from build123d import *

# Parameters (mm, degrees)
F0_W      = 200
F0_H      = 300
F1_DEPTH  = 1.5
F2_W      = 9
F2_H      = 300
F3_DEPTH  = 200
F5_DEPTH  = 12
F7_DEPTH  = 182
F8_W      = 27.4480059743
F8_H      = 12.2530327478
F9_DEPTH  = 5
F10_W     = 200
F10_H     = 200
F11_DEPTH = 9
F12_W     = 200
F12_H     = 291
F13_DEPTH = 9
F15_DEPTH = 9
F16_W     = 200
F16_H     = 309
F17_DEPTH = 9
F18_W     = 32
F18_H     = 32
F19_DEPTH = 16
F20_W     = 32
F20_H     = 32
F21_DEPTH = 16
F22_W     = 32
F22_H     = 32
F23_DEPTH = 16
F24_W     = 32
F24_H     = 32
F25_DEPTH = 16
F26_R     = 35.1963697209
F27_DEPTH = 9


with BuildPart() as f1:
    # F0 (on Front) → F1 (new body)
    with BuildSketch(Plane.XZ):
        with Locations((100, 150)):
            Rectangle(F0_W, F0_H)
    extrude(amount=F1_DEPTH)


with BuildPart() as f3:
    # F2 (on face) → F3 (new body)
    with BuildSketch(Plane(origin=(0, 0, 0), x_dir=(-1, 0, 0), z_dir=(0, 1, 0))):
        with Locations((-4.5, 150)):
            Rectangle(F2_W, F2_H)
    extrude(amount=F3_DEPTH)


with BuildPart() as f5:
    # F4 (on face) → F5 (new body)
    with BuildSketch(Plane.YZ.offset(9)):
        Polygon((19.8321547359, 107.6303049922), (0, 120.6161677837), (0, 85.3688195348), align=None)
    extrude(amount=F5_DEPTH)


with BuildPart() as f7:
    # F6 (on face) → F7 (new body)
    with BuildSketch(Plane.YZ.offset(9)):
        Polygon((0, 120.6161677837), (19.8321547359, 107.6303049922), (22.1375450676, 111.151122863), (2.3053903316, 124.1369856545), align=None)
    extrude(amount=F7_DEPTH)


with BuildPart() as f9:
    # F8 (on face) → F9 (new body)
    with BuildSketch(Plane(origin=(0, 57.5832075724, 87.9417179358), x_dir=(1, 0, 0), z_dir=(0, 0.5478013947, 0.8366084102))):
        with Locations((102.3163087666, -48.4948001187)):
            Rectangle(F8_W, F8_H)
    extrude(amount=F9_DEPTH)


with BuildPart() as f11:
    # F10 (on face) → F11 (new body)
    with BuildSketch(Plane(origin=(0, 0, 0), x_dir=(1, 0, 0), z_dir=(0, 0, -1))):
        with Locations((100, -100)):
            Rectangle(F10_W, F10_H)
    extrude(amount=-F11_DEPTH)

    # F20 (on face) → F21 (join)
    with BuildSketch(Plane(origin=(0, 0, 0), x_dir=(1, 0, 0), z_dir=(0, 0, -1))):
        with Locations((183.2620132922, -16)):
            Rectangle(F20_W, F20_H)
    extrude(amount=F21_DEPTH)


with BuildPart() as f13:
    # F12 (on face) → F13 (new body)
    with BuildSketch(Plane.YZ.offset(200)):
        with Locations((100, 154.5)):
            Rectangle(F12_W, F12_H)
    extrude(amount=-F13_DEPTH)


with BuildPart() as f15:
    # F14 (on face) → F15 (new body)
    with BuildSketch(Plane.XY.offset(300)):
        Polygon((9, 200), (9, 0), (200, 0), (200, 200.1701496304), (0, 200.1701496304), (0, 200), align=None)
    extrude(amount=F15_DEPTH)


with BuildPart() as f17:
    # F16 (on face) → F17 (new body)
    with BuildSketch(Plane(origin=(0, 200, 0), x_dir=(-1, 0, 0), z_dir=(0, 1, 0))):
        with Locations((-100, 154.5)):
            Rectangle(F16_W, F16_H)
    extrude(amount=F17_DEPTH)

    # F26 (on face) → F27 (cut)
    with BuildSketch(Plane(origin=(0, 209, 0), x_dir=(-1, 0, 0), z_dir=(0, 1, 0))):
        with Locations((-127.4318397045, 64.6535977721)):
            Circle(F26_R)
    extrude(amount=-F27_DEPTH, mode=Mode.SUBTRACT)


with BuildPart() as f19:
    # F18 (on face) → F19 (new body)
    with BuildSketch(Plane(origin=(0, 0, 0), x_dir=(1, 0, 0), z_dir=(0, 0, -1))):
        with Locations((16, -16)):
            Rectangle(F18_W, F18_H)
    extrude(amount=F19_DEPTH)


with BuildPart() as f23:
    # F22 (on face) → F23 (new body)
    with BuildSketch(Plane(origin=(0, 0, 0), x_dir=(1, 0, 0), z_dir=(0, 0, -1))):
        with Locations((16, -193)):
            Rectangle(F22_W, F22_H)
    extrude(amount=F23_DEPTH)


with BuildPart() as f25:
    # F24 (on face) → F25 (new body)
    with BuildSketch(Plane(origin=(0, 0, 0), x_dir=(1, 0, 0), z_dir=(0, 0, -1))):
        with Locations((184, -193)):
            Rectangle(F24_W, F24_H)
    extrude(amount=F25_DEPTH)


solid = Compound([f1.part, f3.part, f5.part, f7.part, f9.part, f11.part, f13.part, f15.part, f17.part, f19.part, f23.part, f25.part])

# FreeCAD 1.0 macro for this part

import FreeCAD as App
import Part
import Sketcher

V = App.Vector
Q = App.Units.Quantity

doc = App.newDocument("Part")
body = doc.addObject("PartDesign::Body", "Body")

# Sketch on XZ plane
sketch1 = doc.addObject("Sketcher::SketchObject", "Sketch")
body.addObject(sketch1)
sketch1.AttachmentSupport = (doc.XZ_Plane, [""])
sketch1.MapMode = "FlatFace"
sketch1.addGeometry([
    Part.LineSegment(V(0, 300, 0), V(0, 0, 0)),
    Part.LineSegment(V(0, 0, 0), V(200, 0, 0)),
    Part.LineSegment(V(200, 0, 0), V(200, 300, 0)),
    Part.LineSegment(V(200, 300, 0), V(0, 300, 0)),
], False)
sketch1.addConstraint([
    Sketcher.Constraint("Coincident", 0, 2, 1, 1),
    Sketcher.Constraint("Coincident", 1, 2, 2, 1),
    Sketcher.Constraint("Coincident", 2, 2, 3, 1),
    Sketcher.Constraint("Coincident", 3, 2, 0, 1),
    Sketcher.Constraint("Vertical", 0),
    Sketcher.Constraint("Horizontal", 1),
    Sketcher.Constraint("Vertical", 2),
    Sketcher.Constraint("Horizontal", 3),
    Sketcher.Constraint("Coincident", 0, 2, -1, 1),
    Sketcher.Constraint("DistanceX", 1, 1, 1, 2, Q("200 mm")),
    Sketcher.Constraint("DistanceY", 0, 2, 0, 1, Q("300 mm")),
])
pad1 = doc.addObject("PartDesign::Pad", "Pad")
body.addObject(pad1)
pad1.Profile = sketch1
pad1.Length = 1.5
body2 = doc.addObject("PartDesign::Body", "Body001")

# Sketch on XZ plane
sketch2 = doc.addObject("Sketcher::SketchObject", "Sketch001")
body2.addObject(sketch2)
sketch2.AttachmentSupport = (doc.getObject("XZ_Plane001"), [""])
sketch2.MapMode = "FlatFace"
sketch2.addGeometry([
    Part.LineSegment(V(9, 300, 0), V(9, 0, 0)),
    Part.LineSegment(V(9, 0, 0), V(0, 0, 0)),
    Part.LineSegment(V(0, 0, 0), V(0, 300, 0)),
    Part.LineSegment(V(0, 300, 0), V(9, 300, 0)),
], False)
sketch2.addConstraint([
    Sketcher.Constraint("Coincident", 0, 2, 1, 1),
    Sketcher.Constraint("Coincident", 1, 2, 2, 1),
    Sketcher.Constraint("Coincident", 2, 2, 3, 1),
    Sketcher.Constraint("Coincident", 3, 2, 0, 1),
    Sketcher.Constraint("Vertical", 0),
    Sketcher.Constraint("Horizontal", 1),
    Sketcher.Constraint("Vertical", 2),
    Sketcher.Constraint("Horizontal", 3),
    Sketcher.Constraint("Coincident", 1, 2, -1, 1),
    Sketcher.Constraint("DistanceX", 1, 2, 1, 1, Q("9 mm")),
    Sketcher.Constraint("DistanceY", 0, 2, 0, 1, Q("300 mm")),
])
pad2 = doc.addObject("PartDesign::Pad", "Pad001")
body2.addObject(pad2)
pad2.Profile = sketch2
pad2.Length = 200
pad2.Reversed = True
body3 = doc.addObject("PartDesign::Body", "Body002")

# Sketch on YZ plane
sketch3 = doc.addObject("Sketcher::SketchObject", "Sketch002")
body3.addObject(sketch3)
sketch3.AttachmentSupport = (doc.getObject("YZ_Plane002"), [""])
sketch3.MapMode = "FlatFace"
sketch3.AttachmentOffset = App.Placement(V(0, 0, 9), App.Rotation())
sketch3.addGeometry([
    Part.LineSegment(V(19.832155, 107.630305, 0), V(0, 120.616168, 0)),
    Part.LineSegment(V(0, 120.616168, 0), V(0, 85.36882, 0)),
    Part.LineSegment(V(0, 85.36882, 0), V(19.832155, 107.630305, 0)),
], False)
sketch3.addConstraint([
    Sketcher.Constraint("Coincident", 0, 2, 1, 1),
    Sketcher.Constraint("Coincident", 1, 2, 2, 1),
    Sketcher.Constraint("Coincident", 2, 2, 0, 1),
    Sketcher.Constraint("Vertical", 1),
    Sketcher.Constraint("PointOnObject", 0, 2, -2),
    Sketcher.Constraint("DistanceY", 1, 2, 1, 1, Q("35.247348 mm")),
    Sketcher.Constraint("Distance", 0, Q("23.705421 mm")),
    Sketcher.Constraint("DistanceY", -1, 1, 1, 2, Q("85.36882 mm")),
    Sketcher.Constraint("Distance", 2, Q("29.814226 mm")),
])
pad3 = doc.addObject("PartDesign::Pad", "Pad002")
body3.addObject(pad3)
pad3.Profile = sketch3
pad3.Length = 12
body4 = doc.addObject("PartDesign::Body", "Body003")

# Sketch on YZ plane
sketch4 = doc.addObject("Sketcher::SketchObject", "Sketch003")
body4.addObject(sketch4)
sketch4.AttachmentSupport = (doc.getObject("YZ_Plane003"), [""])
sketch4.MapMode = "FlatFace"
sketch4.AttachmentOffset = App.Placement(V(0, 0, 9), App.Rotation())
sketch4.addGeometry([
    Part.LineSegment(V(0, 120.616168, 0), V(19.832155, 107.630305, 0)),
    Part.LineSegment(V(19.832155, 107.630305, 0), V(22.137545, 111.151123, 0)),
    Part.LineSegment(V(22.137545, 111.151123, 0), V(2.30539, 124.136986, 0)),
    Part.LineSegment(V(2.30539, 124.136986, 0), V(0, 120.616168, 0)),
], False)
sketch4.addConstraint([
    Sketcher.Constraint("Coincident", 0, 2, 1, 1),
    Sketcher.Constraint("Coincident", 1, 2, 2, 1),
    Sketcher.Constraint("Coincident", 2, 2, 3, 1),
    Sketcher.Constraint("Coincident", 3, 2, 0, 1),
    Sketcher.Constraint("PointOnObject", 3, 2, -2),
    Sketcher.Constraint("Perpendicular", 0, 1),
    Sketcher.Constraint("Perpendicular", 1, 2),
    Sketcher.Constraint("Perpendicular", 2, 3),
    Sketcher.Constraint("Distance", 0, Q("23.705421 mm")),
    Sketcher.Constraint("Distance", 1, Q("4.208442 mm")),
    Sketcher.Constraint("DistanceX", -1, 1, 2, 2, Q("2.30539 mm")),
    Sketcher.Constraint("DistanceY", -1, 1, 0, 2, Q("107.630305 mm")),
])
pad4 = doc.addObject("PartDesign::Pad", "Pad003")
body4.addObject(pad4)
pad4.Profile = sketch4
pad4.Length = 182
body5 = doc.addObject("PartDesign::Body", "Body004")

# Sketch on an angled plane
sketch5 = doc.addObject("Sketcher::SketchObject", "Sketch004")
body5.addObject(sketch5)
sketch5.Placement = App.Placement(V(0, 57.583208, 87.941718), App.Rotation(V(1, 0, 0), V(0, 0.83660841, -0.547801395), V(0, 0.547801395, 0.83660841), "ZXY"))
sketch5.addGeometry([
    Part.LineSegment(V(88.592306, -42.368284, 0), V(88.592306, -54.621316, 0)),
    Part.LineSegment(V(88.592306, -54.621316, 0), V(116.040312, -54.621316, 0)),
    Part.LineSegment(V(116.040312, -54.621316, 0), V(116.040312, -42.368284, 0)),
    Part.LineSegment(V(116.040312, -42.368284, 0), V(88.592306, -42.368284, 0)),
], False)
sketch5.addConstraint([
    Sketcher.Constraint("Coincident", 0, 2, 1, 1),
    Sketcher.Constraint("Coincident", 1, 2, 2, 1),
    Sketcher.Constraint("Coincident", 2, 2, 3, 1),
    Sketcher.Constraint("Coincident", 3, 2, 0, 1),
    Sketcher.Constraint("Vertical", 0),
    Sketcher.Constraint("Horizontal", 1),
    Sketcher.Constraint("Vertical", 2),
    Sketcher.Constraint("Horizontal", 3),
    Sketcher.Constraint("DistanceX", 1, 1, 1, 2, Q("27.448006 mm")),
    Sketcher.Constraint("DistanceY", 0, 2, 0, 1, Q("12.253033 mm")),
    Sketcher.Constraint("DistanceX", -1, 1, 1, 2, Q("116.040312 mm")),
    Sketcher.Constraint("DistanceY", 0, 2, -1, 1, Q("54.621316 mm")),
])
pad5 = doc.addObject("PartDesign::Pad", "Pad004")
body5.addObject(pad5)
pad5.Profile = sketch5
pad5.Length = 5
body6 = doc.addObject("PartDesign::Body", "Body005")

# Sketch on XY plane
sketch6 = doc.addObject("Sketcher::SketchObject", "Sketch005")
body6.addObject(sketch6)
sketch6.AttachmentSupport = (doc.getObject("XY_Plane005"), [""])
sketch6.MapMode = "FlatFace"
sketch6.addGeometry([
    Part.LineSegment(V(0, 0, 0), V(0, 200, 0)),
    Part.LineSegment(V(0, 200, 0), V(200, 200, 0)),
    Part.LineSegment(V(200, 200, 0), V(200, 0, 0)),
    Part.LineSegment(V(200, 0, 0), V(0, 0, 0)),
], False)
sketch6.addConstraint([
    Sketcher.Constraint("Coincident", 0, 2, 1, 1),
    Sketcher.Constraint("Coincident", 1, 2, 2, 1),
    Sketcher.Constraint("Coincident", 2, 2, 3, 1),
    Sketcher.Constraint("Coincident", 3, 2, 0, 1),
    Sketcher.Constraint("Vertical", 0),
    Sketcher.Constraint("Horizontal", 1),
    Sketcher.Constraint("Vertical", 2),
    Sketcher.Constraint("Horizontal", 3),
    Sketcher.Constraint("Coincident", 3, 2, -1, 1),
    Sketcher.Constraint("Equal", 3, 0),
    Sketcher.Constraint("DistanceX", 1, 1, 1, 2, Q("200 mm")),
])
pad6 = doc.addObject("PartDesign::Pad", "Pad005")
body6.addObject(pad6)
pad6.Profile = sketch6
pad6.Length = 9

# Sketch on XY plane
sketch7 = doc.addObject("Sketcher::SketchObject", "Sketch006")
body6.addObject(sketch7)
sketch7.AttachmentSupport = (doc.getObject("XY_Plane005"), [""])
sketch7.MapMode = "FlatFace"
sketch7.addGeometry([
    Part.LineSegment(V(167.262013, 0, 0), V(167.262013, 32, 0)),
    Part.LineSegment(V(167.262013, 32, 0), V(199.262013, 32, 0)),
    Part.LineSegment(V(199.262013, 32, 0), V(199.262013, 0, 0)),
    Part.LineSegment(V(199.262013, 0, 0), V(167.262013, 0, 0)),
], False)
sketch7.addConstraint([
    Sketcher.Constraint("Coincident", 0, 2, 1, 1),
    Sketcher.Constraint("Coincident", 1, 2, 2, 1),
    Sketcher.Constraint("Coincident", 2, 2, 3, 1),
    Sketcher.Constraint("Coincident", 3, 2, 0, 1),
    Sketcher.Constraint("Vertical", 0),
    Sketcher.Constraint("Horizontal", 1),
    Sketcher.Constraint("Vertical", 2),
    Sketcher.Constraint("Horizontal", 3),
    Sketcher.Constraint("PointOnObject", 2, 2, -1),
    Sketcher.Constraint("Equal", 3, 0),
    Sketcher.Constraint("DistanceX", 1, 1, 1, 2, Q("32 mm")),
    Sketcher.Constraint("DistanceX", -1, 1, 0, 2, Q("167.262013 mm")),
])
pad7 = doc.addObject("PartDesign::Pad", "Pad006")
body6.addObject(pad7)
pad7.Profile = sketch7
pad7.Length = 16
pad7.Reversed = True
body7 = doc.addObject("PartDesign::Body", "Body006")

# Sketch on YZ plane
sketch8 = doc.addObject("Sketcher::SketchObject", "Sketch007")
body7.addObject(sketch8)
sketch8.AttachmentSupport = (doc.getObject("YZ_Plane006"), [""])
sketch8.MapMode = "FlatFace"
sketch8.AttachmentOffset = App.Placement(V(0, 0, 200), App.Rotation())
sketch8.addGeometry([
    Part.LineSegment(V(0, 300, 0), V(0, 9, 0)),
    Part.LineSegment(V(0, 9, 0), V(200, 9, 0)),
    Part.LineSegment(V(200, 9, 0), V(200, 300, 0)),
    Part.LineSegment(V(200, 300, 0), V(0, 300, 0)),
], False)
sketch8.addConstraint([
    Sketcher.Constraint("Coincident", 0, 2, 1, 1),
    Sketcher.Constraint("Coincident", 1, 2, 2, 1),
    Sketcher.Constraint("Coincident", 2, 2, 3, 1),
    Sketcher.Constraint("Coincident", 3, 2, 0, 1),
    Sketcher.Constraint("Vertical", 0),
    Sketcher.Constraint("Horizontal", 1),
    Sketcher.Constraint("Vertical", 2),
    Sketcher.Constraint("Horizontal", 3),
    Sketcher.Constraint("PointOnObject", 0, 2, -2),
    Sketcher.Constraint("DistanceX", 1, 1, 1, 2, Q("200 mm")),
    Sketcher.Constraint("DistanceY", 0, 2, 0, 1, Q("291 mm")),
    Sketcher.Constraint("DistanceY", -1, 1, 0, 2, Q("9 mm")),
])
pad8 = doc.addObject("PartDesign::Pad", "Pad007")
body7.addObject(pad8)
pad8.Profile = sketch8
pad8.Length = 9
pad8.Reversed = True
body8 = doc.addObject("PartDesign::Body", "Body007")

# Sketch on XY plane
sketch9 = doc.addObject("Sketcher::SketchObject", "Sketch008")
body8.addObject(sketch9)
sketch9.AttachmentSupport = (doc.getObject("XY_Plane007"), [""])
sketch9.MapMode = "FlatFace"
sketch9.AttachmentOffset = App.Placement(V(0, 0, 300), App.Rotation())
sketch9.addGeometry([
    Part.LineSegment(V(9, 200, 0), V(9, 0, 0)),  # 0
    Part.LineSegment(V(9, 0, 0), V(200, 0, 0)),  # 1
    Part.LineSegment(V(200, 0, 0), V(200, 200.17015, 0)),  # 2
    Part.LineSegment(V(200, 200.17015, 0), V(0, 200.17015, 0)),  # 3
    Part.LineSegment(V(0, 200.17015, 0), V(0, 200, 0)),  # 4
    Part.LineSegment(V(0, 200, 0), V(9, 200, 0)),  # 5
], False)
sketch9.addConstraint([
    Sketcher.Constraint("Coincident", 0, 2, 1, 1),
    Sketcher.Constraint("Coincident", 1, 2, 2, 1),
    Sketcher.Constraint("Coincident", 2, 2, 3, 1),
    Sketcher.Constraint("Coincident", 3, 2, 4, 1),
    Sketcher.Constraint("Coincident", 4, 2, 5, 1),
    Sketcher.Constraint("Coincident", 5, 2, 0, 1),
    Sketcher.Constraint("Vertical", 0),
    Sketcher.Constraint("Horizontal", 1),
    Sketcher.Constraint("Vertical", 2),
    Sketcher.Constraint("Horizontal", 3),
    Sketcher.Constraint("Vertical", 4),
    Sketcher.Constraint("Horizontal", 5),
    Sketcher.Constraint("PointOnObject", 0, 2, -1),
    Sketcher.Constraint("PointOnObject", 3, 2, -2),
    Sketcher.Constraint("Equal", 3, 0),
    Sketcher.Constraint("DistanceX", 1, 1, 1, 2, Q("191 mm")),
    Sketcher.Constraint("DistanceX", 3, 2, 3, 1, Q("200 mm")),
    Sketcher.Constraint("DistanceY", 2, 1, 2, 2, Q("200.17015 mm")),
])
pad9 = doc.addObject("PartDesign::Pad", "Pad008")
body8.addObject(pad9)
pad9.Profile = sketch9
pad9.Length = 9
body9 = doc.addObject("PartDesign::Body", "Body008")

# Sketch on XZ plane
sketch10 = doc.addObject("Sketcher::SketchObject", "Sketch009")
body9.addObject(sketch10)
sketch10.AttachmentSupport = (doc.getObject("XZ_Plane008"), [""])
sketch10.MapMode = "FlatFace"
sketch10.AttachmentOffset = App.Placement(V(0, 0, -200), App.Rotation())
sketch10.addGeometry([
    Part.LineSegment(V(200, 309, 0), V(200, 0, 0)),
    Part.LineSegment(V(200, 0, 0), V(0, 0, 0)),
    Part.LineSegment(V(0, 0, 0), V(0, 309, 0)),
    Part.LineSegment(V(0, 309, 0), V(200, 309, 0)),
], False)
sketch10.addConstraint([
    Sketcher.Constraint("Coincident", 0, 2, 1, 1),
    Sketcher.Constraint("Coincident", 1, 2, 2, 1),
    Sketcher.Constraint("Coincident", 2, 2, 3, 1),
    Sketcher.Constraint("Coincident", 3, 2, 0, 1),
    Sketcher.Constraint("Vertical", 0),
    Sketcher.Constraint("Horizontal", 1),
    Sketcher.Constraint("Vertical", 2),
    Sketcher.Constraint("Horizontal", 3),
    Sketcher.Constraint("Coincident", 1, 2, -1, 1),
    Sketcher.Constraint("DistanceX", 1, 2, 1, 1, Q("200 mm")),
    Sketcher.Constraint("DistanceY", 0, 2, 0, 1, Q("309 mm")),
])
pad10 = doc.addObject("PartDesign::Pad", "Pad009")
body9.addObject(pad10)
pad10.Profile = sketch10
pad10.Length = 9
pad10.Reversed = True

# Sketch on XZ plane
sketch11 = doc.addObject("Sketcher::SketchObject", "Sketch010")
body9.addObject(sketch11)
sketch11.AttachmentSupport = (doc.getObject("XZ_Plane008"), [""])
sketch11.MapMode = "FlatFace"
sketch11.AttachmentOffset = App.Placement(V(0, 0, -209), App.Rotation())
sketch11.addGeometry(Part.Circle(V(127.43184, 64.653598, 0), V(0, 0, 1), 35.19637), False)
sketch11.addConstraint([
    Sketcher.Constraint("Diameter", 0, Q("70.392739 mm")),
    Sketcher.Constraint("DistanceX", -1, 1, 0, 3, Q("127.43184 mm")),
    Sketcher.Constraint("DistanceY", -1, 1, 0, 3, Q("64.653598 mm")),
])
pocket1 = doc.addObject("PartDesign::Pocket", "Pocket")
body9.addObject(pocket1)
pocket1.Profile = sketch11
pocket1.Length = 9
pocket1.Reversed = True
body10 = doc.addObject("PartDesign::Body", "Body009")

# Sketch on XY plane
sketch12 = doc.addObject("Sketcher::SketchObject", "Sketch011")
body10.addObject(sketch12)
sketch12.AttachmentSupport = (doc.getObject("XY_Plane009"), [""])
sketch12.MapMode = "FlatFace"
sketch12.addGeometry([
    Part.LineSegment(V(0, 0, 0), V(0, 32, 0)),
    Part.LineSegment(V(0, 32, 0), V(32, 32, 0)),
    Part.LineSegment(V(32, 32, 0), V(32, 0, 0)),
    Part.LineSegment(V(32, 0, 0), V(0, 0, 0)),
], False)
sketch12.addConstraint([
    Sketcher.Constraint("Coincident", 0, 2, 1, 1),
    Sketcher.Constraint("Coincident", 1, 2, 2, 1),
    Sketcher.Constraint("Coincident", 2, 2, 3, 1),
    Sketcher.Constraint("Coincident", 3, 2, 0, 1),
    Sketcher.Constraint("Vertical", 0),
    Sketcher.Constraint("Horizontal", 1),
    Sketcher.Constraint("Vertical", 2),
    Sketcher.Constraint("Horizontal", 3),
    Sketcher.Constraint("Coincident", 3, 2, -1, 1),
    Sketcher.Constraint("Equal", 3, 0),
    Sketcher.Constraint("DistanceX", 1, 1, 1, 2, Q("32 mm")),
])
pad11 = doc.addObject("PartDesign::Pad", "Pad010")
body10.addObject(pad11)
pad11.Profile = sketch12
pad11.Length = 16
pad11.Reversed = True
body11 = doc.addObject("PartDesign::Body", "Body010")

# Sketch on XY plane
sketch13 = doc.addObject("Sketcher::SketchObject", "Sketch012")
body11.addObject(sketch13)
sketch13.AttachmentSupport = (doc.getObject("XY_Plane010"), [""])
sketch13.MapMode = "FlatFace"
sketch13.addGeometry([
    Part.LineSegment(V(0, 177, 0), V(0, 209, 0)),
    Part.LineSegment(V(0, 209, 0), V(32, 209, 0)),
    Part.LineSegment(V(32, 209, 0), V(32, 177, 0)),
    Part.LineSegment(V(32, 177, 0), V(0, 177, 0)),
], False)
sketch13.addConstraint([
    Sketcher.Constraint("Coincident", 0, 2, 1, 1),
    Sketcher.Constraint("Coincident", 1, 2, 2, 1),
    Sketcher.Constraint("Coincident", 2, 2, 3, 1),
    Sketcher.Constraint("Coincident", 3, 2, 0, 1),
    Sketcher.Constraint("Vertical", 0),
    Sketcher.Constraint("Horizontal", 1),
    Sketcher.Constraint("Vertical", 2),
    Sketcher.Constraint("Horizontal", 3),
    Sketcher.Constraint("PointOnObject", 0, 2, -2),
    Sketcher.Constraint("Equal", 3, 0),
    Sketcher.Constraint("DistanceX", 1, 1, 1, 2, Q("32 mm")),
    Sketcher.Constraint("DistanceY", -1, 1, 0, 2, Q("209 mm")),
])
pad12 = doc.addObject("PartDesign::Pad", "Pad011")
body11.addObject(pad12)
pad12.Profile = sketch13
pad12.Length = 16
pad12.Reversed = True
body12 = doc.addObject("PartDesign::Body", "Body011")

# Sketch on XY plane
sketch14 = doc.addObject("Sketcher::SketchObject", "Sketch013")
body12.addObject(sketch14)
sketch14.AttachmentSupport = (doc.getObject("XY_Plane011"), [""])
sketch14.MapMode = "FlatFace"
sketch14.addGeometry([
    Part.LineSegment(V(168, 177, 0), V(168, 209, 0)),
    Part.LineSegment(V(168, 209, 0), V(200, 209, 0)),
    Part.LineSegment(V(200, 209, 0), V(200, 177, 0)),
    Part.LineSegment(V(200, 177, 0), V(168, 177, 0)),
], False)
sketch14.addConstraint([
    Sketcher.Constraint("Coincident", 0, 2, 1, 1),
    Sketcher.Constraint("Coincident", 1, 2, 2, 1),
    Sketcher.Constraint("Coincident", 2, 2, 3, 1),
    Sketcher.Constraint("Coincident", 3, 2, 0, 1),
    Sketcher.Constraint("Vertical", 0),
    Sketcher.Constraint("Horizontal", 1),
    Sketcher.Constraint("Vertical", 2),
    Sketcher.Constraint("Horizontal", 3),
    Sketcher.Constraint("Equal", 3, 0),
    Sketcher.Constraint("DistanceX", 1, 1, 1, 2, Q("32 mm")),
    Sketcher.Constraint("DistanceX", -1, 1, 0, 2, Q("168 mm")),
    Sketcher.Constraint("DistanceY", -1, 1, 0, 2, Q("209 mm")),
])
pad13 = doc.addObject("PartDesign::Pad", "Pad012")
body12.addObject(pad13)
pad13.Profile = sketch14
pad13.Length = 16
pad13.Reversed = True

doc.recompute()
